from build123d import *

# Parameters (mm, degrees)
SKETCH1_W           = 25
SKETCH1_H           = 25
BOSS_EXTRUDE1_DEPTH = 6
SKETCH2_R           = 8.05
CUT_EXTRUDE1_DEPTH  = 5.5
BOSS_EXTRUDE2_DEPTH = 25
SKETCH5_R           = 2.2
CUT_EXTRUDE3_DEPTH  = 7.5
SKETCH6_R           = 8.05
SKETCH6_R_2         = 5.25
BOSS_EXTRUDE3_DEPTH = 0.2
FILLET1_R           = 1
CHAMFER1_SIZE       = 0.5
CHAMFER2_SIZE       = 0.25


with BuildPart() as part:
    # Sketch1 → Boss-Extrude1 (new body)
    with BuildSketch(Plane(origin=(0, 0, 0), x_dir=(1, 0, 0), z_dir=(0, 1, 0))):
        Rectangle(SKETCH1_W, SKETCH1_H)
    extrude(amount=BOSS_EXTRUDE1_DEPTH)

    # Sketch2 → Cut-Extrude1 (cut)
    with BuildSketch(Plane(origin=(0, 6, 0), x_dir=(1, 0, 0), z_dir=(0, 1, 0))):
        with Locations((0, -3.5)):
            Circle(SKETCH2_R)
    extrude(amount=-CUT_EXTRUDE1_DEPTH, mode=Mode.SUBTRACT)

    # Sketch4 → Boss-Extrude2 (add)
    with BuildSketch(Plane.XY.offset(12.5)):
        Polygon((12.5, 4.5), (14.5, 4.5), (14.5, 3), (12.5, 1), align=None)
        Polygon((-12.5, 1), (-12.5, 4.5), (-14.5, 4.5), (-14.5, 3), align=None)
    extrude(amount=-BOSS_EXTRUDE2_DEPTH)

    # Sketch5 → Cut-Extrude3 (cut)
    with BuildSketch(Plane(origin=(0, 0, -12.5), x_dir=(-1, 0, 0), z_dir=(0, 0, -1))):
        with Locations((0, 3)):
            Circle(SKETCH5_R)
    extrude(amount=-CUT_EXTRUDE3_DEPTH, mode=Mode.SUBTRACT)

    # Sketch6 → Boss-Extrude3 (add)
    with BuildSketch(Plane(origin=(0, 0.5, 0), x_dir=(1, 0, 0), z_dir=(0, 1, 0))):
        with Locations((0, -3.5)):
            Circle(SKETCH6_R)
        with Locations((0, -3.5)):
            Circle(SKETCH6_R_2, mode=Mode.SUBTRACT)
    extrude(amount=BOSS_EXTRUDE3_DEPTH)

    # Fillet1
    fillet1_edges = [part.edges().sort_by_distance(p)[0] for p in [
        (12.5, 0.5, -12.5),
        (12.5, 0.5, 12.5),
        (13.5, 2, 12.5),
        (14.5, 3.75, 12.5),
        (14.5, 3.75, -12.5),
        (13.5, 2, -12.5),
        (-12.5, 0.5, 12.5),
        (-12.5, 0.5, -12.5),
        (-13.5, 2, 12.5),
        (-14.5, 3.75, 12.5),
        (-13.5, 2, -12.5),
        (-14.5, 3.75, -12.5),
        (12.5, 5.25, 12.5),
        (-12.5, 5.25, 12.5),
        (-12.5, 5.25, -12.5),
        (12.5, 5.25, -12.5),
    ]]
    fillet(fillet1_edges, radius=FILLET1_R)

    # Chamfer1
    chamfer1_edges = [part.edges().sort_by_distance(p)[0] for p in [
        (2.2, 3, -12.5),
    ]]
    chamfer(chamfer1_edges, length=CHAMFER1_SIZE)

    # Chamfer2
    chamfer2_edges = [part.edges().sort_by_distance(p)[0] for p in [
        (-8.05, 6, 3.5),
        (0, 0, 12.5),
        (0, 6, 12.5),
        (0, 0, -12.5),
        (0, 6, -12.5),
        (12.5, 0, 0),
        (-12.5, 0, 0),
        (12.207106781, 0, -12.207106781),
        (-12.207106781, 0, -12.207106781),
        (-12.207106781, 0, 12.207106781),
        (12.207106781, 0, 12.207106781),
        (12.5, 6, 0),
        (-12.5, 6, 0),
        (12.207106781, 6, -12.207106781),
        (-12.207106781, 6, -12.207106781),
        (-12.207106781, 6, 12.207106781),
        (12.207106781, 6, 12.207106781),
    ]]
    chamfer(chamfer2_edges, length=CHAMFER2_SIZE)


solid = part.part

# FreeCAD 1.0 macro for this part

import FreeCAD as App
import Part
import Sketcher
Q = App.Units.Quantity


def edges_at(feature, points):
    """Names of the edges that pass closest to the given points."""
    edges = feature.Shape.Edges
    near = lambda p: min(range(len(edges)), key=lambda i: edges[i].distToShape(Part.Vertex(*p))[0])
    return sorted({f"Edge{near(p) + 1}" for p in points})

doc = App.newDocument("Part")
params = doc.addObject("Spreadsheet::Sheet", "Params")
for row, (alias, value) in enumerate([
    ("sketch1_width", "25 mm"),
    ("pad1_length", "6 mm"),
    ("sketch2_diameter", "16.1 mm"),
    ("pocket1_length", "5.5 mm"),
    ("sketch3_width", "2 mm"),
    ("sketch3_height", "3.5 mm"),
    ("pad2_length", "25 mm"),
    ("sketch4_diameter", "4.4 mm"),
    ("pocket2_length", "7.5 mm"),
    ("sketch5_diameter", "16.1 mm"),
    ("sketch5_diameter2", "10.5 mm"),
    ("pad3_length", "0.2 mm"),
    ("fillet_radius", "1 mm"),
    ("chamfer_size", "0.5 mm"),
    ("chamfer2_size", "0.25 mm"),
], start=1):
    params.set(f"A{row}", alias)
    params.set(f"B{row}", "=" + value)
    params.setAlias(f"B{row}", alias)

body = doc.addObject("PartDesign::Body", "Body")

# Sketch on XZ plane
sketch1 = body.newObject("Sketcher::SketchObject", "Sketch")
sketch1.AttachmentSupport = (doc.getObject("XZ_Plane"), [""])
sketch1.MapMode = "FlatFace"
sketch1.addGeometry([
    Part.LineSegment(App.Vector(-12, -12, 0), App.Vector(-12, 12, 0)),
    Part.LineSegment(App.Vector(-12, 12, 0), App.Vector(12, 12, 0)),
    Part.LineSegment(App.Vector(12, 12, 0), App.Vector(12, -12, 0)),
    Part.LineSegment(App.Vector(12, -12, 0), App.Vector(-12, -12, 0)),
], False)
sketch1.addConstraint([
    Sketcher.Constraint("Coincident", 0, 2, 1, 1),
    Sketcher.Constraint("Coincident", 1, 2, 2, 1),
    Sketcher.Constraint("Coincident", 2, 2, 3, 1),
    Sketcher.Constraint("Coincident", 3, 2, 0, 1),
    Sketcher.Constraint("Vertical", 0),
    Sketcher.Constraint("Horizontal", 1),
    Sketcher.Constraint("Vertical", 2),
    Sketcher.Constraint("Horizontal", 3),
    Sketcher.Constraint("Symmetric", 0, 2, 2, 2, -1, 1),
    Sketcher.Constraint("Equal", 3, 0),
    Sketcher.Constraint("DistanceX", 1, 1, 1, 2, Q("25 mm")),
])
sketch1.setExpression("Constraints[10]", "Params.sketch1_width")
pad1 = body.newObject("PartDesign::Pad", "Pad")
pad1.Profile = sketch1
pad1.setExpression("Length", "Params.pad1_length")
pad1.Reversed = True

# Sketch on XZ plane
sketch2 = body.newObject("Sketcher::SketchObject", "Sketch001")
sketch2.AttachmentSupport = (doc.getObject("XZ_Plane"), [""])
sketch2.MapMode = "FlatFace"
sketch2.AttachmentOffset = App.Placement(App.Vector(0, 0, -6), App.Rotation())
sketch2.addGeometry(Part.Circle(App.Vector(0, 4, 0), App.Vector(0, 0, 1), 8), False)
sketch2.addConstraint([
    Sketcher.Constraint("PointOnObject", 0, 3, -2),
    Sketcher.Constraint("Diameter", 0, Q("16.1 mm")),
    Sketcher.Constraint("DistanceY", -1, 1, 0, 3, Q("3.5 mm")),
])
sketch2.setExpression("Constraints[1]", "Params.sketch2_diameter")
pocket1 = body.newObject("PartDesign::Pocket", "Pocket")
pocket1.Profile = sketch2
pocket1.setExpression("Length", "Params.pocket1_length")
pocket1.Reversed = True

# Sketch on XY plane
sketch3 = body.newObject("Sketcher::SketchObject", "Sketch002")
sketch3.AttachmentSupport = (doc.getObject("XY_Plane"), [""])
sketch3.MapMode = "FlatFace"
sketch3.AttachmentOffset = App.Placement(App.Vector(0, 0, 12.5), App.Rotation())
sketch3.addGeometry([
    Part.LineSegment(App.Vector(14.5, 4.5, 0), App.Vector(12.5, 4.5, 0)),  # 0
    Part.LineSegment(App.Vector(12.5, 4.5, 0), App.Vector(12.5, 1, 0)),  # 1
    Part.LineSegment(App.Vector(12.5, 1, 0), App.Vector(14.5, 3, 0)),  # 2
    Part.LineSegment(App.Vector(14.5, 3, 0), App.Vector(14.5, 4.5, 0)),  # 3
    Part.LineSegment(App.Vector(-12.5, 1, 0), App.Vector(-12.5, 4.5, 0)),  # 4
    Part.LineSegment(App.Vector(-12.5, 4.5, 0), App.Vector(-14.5, 4.5, 0)),  # 5
    Part.LineSegment(App.Vector(-14.5, 4.5, 0), App.Vector(-14.5, 3, 0)),  # 6
    Part.LineSegment(App.Vector(-14.5, 3, 0), App.Vector(-12.5, 1, 0)),  # 7
], False)
sketch3.addConstraint([
    Sketcher.Constraint("Coincident", 0, 2, 1, 1),
    Sketcher.Constraint("Coincident", 1, 2, 2, 1),
    Sketcher.Constraint("Coincident", 2, 2, 3, 1),
    Sketcher.Constraint("Coincident", 3, 2, 0, 1),
    Sketcher.Constraint("Coincident", 4, 2, 5, 1),
    Sketcher.Constraint("Coincident", 5, 2, 6, 1),
    Sketcher.Constraint("Coincident", 6, 2, 7, 1),
    Sketcher.Constraint("Coincident", 7, 2, 4, 1),
    Sketcher.Constraint("Horizontal", 0),
    Sketcher.Constraint("Vertical", 1),
    Sketcher.Constraint("Vertical", 3),
    Sketcher.Constraint("Vertical", 4),
    Sketcher.Constraint("Horizontal", 5),
    Sketcher.Constraint("Vertical", 6),
    Sketcher.Constraint("Symmetric", 0, 2, 4, 2, -2),
    Sketcher.Constraint("Symmetric", 2, 2, 6, 2, -2),
    Sketcher.Constraint("Perpendicular", 2, 7),
    Sketcher.Constraint("Horizontal", 1, 2, 7, 2),
    Sketcher.Constraint("DistanceX", 0, 2, 0, 1, Q("2 mm")),
    Sketcher.Constraint("DistanceY", 1, 2, 1, 1, Q("3.5 mm")),
    Sketcher.Constraint("DistanceY", -1, 1, 1, 2, Q("1 mm")),
    Sketcher.Constraint("DistanceX", 4, 2, 0, 2, Q("25 mm")),
])
sketch3.setExpression("Constraints[18]", "Params.sketch3_width")
sketch3.setExpression("Constraints[19]", "Params.sketch3_height")
pad2 = body.newObject("PartDesign::Pad", "Pad001")
pad2.Profile = sketch3
pad2.setExpression("Length", "Params.pad2_length")
pad2.Reversed = True

# Sketch on XY plane
sketch4 = body.newObject("Sketcher::SketchObject", "Sketch003")
sketch4.AttachmentSupport = (doc.getObject("XY_Plane"), [""])
sketch4.MapMode = "FlatFace"
sketch4.AttachmentOffset = App.Placement(App.Vector(0, 0, -12.5), App.Rotation())
sketch4.addGeometry(Part.Circle(App.Vector(0, 3, 0), App.Vector(0, 0, 1), 2.2), False)
sketch4.addConstraint([
    Sketcher.Constraint("PointOnObject", 0, 3, -2),
    Sketcher.Constraint("Diameter", 0, Q("4.4 mm")),
    Sketcher.Constraint("DistanceY", -1, 1, 0, 3, Q("3 mm")),
])
sketch4.setExpression("Constraints[1]", "Params.sketch4_diameter")
pocket2 = body.newObject("PartDesign::Pocket", "Pocket001")
pocket2.Profile = sketch4
pocket2.setExpression("Length", "Params.pocket2_length")
pocket2.Reversed = True

# Sketch on XZ plane
sketch5 = body.newObject("Sketcher::SketchObject", "Sketch004")
sketch5.AttachmentSupport = (doc.getObject("XZ_Plane"), [""])
sketch5.MapMode = "FlatFace"
sketch5.AttachmentOffset = App.Placement(App.Vector(0, 0, -0.5), App.Rotation())
sketch5.addGeometry([
    Part.Circle(App.Vector(0, 4, 0), App.Vector(0, 0, 1), 8),
    Part.Circle(App.Vector(0, 4, 0), App.Vector(0, 0, 1), 5),
], False)
sketch5.addConstraint([
    Sketcher.Constraint("Coincident", 1, 3, 0, 3),
    Sketcher.Constraint("PointOnObject", 0, 3, -2),
    Sketcher.Constraint("Diameter", 0, Q("16.1 mm")),
    Sketcher.Constraint("Diameter", 1, Q("10.5 mm")),
    Sketcher.Constraint("DistanceY", -1, 1, 0, 3, Q("3.5 mm")),
])
sketch5.setExpression("Constraints[2]", "Params.sketch5_diameter")
sketch5.setExpression("Constraints[3]", "Params.sketch5_diameter2")
pad3 = body.newObject("PartDesign::Pad", "Pad002")
pad3.Profile = sketch5
pad3.setExpression("Length", "Params.pad3_length")
pad3.Reversed = True
doc.recompute()

fillet = body.newObject("PartDesign::Fillet", "Fillet")
fillet.Base = (pad3, edges_at(pad3, [
    (12.5, 0.5, -12.5),
    (12.5, 0.5, 12.5),
    (13.5, 2, 12.5),
    (14.5, 3.75, 12.5),
    (14.5, 3.75, -12.5),
    (13.5, 2, -12.5),
    (-12.5, 0.5, 12.5),
    (-12.5, 0.5, -12.5),
    (-13.5, 2, 12.5),
    (-14.5, 3.75, 12.5),
    (-13.5, 2, -12.5),
    (-14.5, 3.75, -12.5),
    (12.5, 5.25, 12.5),
    (-12.5, 5.25, 12.5),
    (-12.5, 5.25, -12.5),
    (12.5, 5.25, -12.5),
]))
fillet.setExpression("Radius", "Params.fillet_radius")
doc.recompute()

chamfer = body.newObject("PartDesign::Chamfer", "Chamfer")
chamfer.Base = (fillet, edges_at(fillet, [(2.2, 3, -12.5)]))
chamfer.setExpression("Size", "Params.chamfer_size")
doc.recompute()

chamfer2 = body.newObject("PartDesign::Chamfer", "Chamfer001")
chamfer2.Base = (chamfer, edges_at(chamfer, [
    (-8.05, 6, 3.5),
    (0, 0, 12.5),
    (0, 6, 12.5),
    (0, 0, -12.5),
    (0, 6, -12.5),
    (12.5, 0, 0),
    (-12.5, 0, 0),
    (12.207, 0, -12.207),
    (-12.207, 0, -12.207),
    (-12.207, 0, 12.207),
    (12.207, 0, 12.207),
    (12.5, 6, 0),
    (-12.5, 6, 0),
    (12.207, 6, -12.207),
    (-12.207, 6, -12.207),
    (-12.207, 6, 12.207),
    (12.207, 6, 12.207),
]))
chamfer2.setExpression("Size", "Params.chamfer2_size")

doc.recompute()
